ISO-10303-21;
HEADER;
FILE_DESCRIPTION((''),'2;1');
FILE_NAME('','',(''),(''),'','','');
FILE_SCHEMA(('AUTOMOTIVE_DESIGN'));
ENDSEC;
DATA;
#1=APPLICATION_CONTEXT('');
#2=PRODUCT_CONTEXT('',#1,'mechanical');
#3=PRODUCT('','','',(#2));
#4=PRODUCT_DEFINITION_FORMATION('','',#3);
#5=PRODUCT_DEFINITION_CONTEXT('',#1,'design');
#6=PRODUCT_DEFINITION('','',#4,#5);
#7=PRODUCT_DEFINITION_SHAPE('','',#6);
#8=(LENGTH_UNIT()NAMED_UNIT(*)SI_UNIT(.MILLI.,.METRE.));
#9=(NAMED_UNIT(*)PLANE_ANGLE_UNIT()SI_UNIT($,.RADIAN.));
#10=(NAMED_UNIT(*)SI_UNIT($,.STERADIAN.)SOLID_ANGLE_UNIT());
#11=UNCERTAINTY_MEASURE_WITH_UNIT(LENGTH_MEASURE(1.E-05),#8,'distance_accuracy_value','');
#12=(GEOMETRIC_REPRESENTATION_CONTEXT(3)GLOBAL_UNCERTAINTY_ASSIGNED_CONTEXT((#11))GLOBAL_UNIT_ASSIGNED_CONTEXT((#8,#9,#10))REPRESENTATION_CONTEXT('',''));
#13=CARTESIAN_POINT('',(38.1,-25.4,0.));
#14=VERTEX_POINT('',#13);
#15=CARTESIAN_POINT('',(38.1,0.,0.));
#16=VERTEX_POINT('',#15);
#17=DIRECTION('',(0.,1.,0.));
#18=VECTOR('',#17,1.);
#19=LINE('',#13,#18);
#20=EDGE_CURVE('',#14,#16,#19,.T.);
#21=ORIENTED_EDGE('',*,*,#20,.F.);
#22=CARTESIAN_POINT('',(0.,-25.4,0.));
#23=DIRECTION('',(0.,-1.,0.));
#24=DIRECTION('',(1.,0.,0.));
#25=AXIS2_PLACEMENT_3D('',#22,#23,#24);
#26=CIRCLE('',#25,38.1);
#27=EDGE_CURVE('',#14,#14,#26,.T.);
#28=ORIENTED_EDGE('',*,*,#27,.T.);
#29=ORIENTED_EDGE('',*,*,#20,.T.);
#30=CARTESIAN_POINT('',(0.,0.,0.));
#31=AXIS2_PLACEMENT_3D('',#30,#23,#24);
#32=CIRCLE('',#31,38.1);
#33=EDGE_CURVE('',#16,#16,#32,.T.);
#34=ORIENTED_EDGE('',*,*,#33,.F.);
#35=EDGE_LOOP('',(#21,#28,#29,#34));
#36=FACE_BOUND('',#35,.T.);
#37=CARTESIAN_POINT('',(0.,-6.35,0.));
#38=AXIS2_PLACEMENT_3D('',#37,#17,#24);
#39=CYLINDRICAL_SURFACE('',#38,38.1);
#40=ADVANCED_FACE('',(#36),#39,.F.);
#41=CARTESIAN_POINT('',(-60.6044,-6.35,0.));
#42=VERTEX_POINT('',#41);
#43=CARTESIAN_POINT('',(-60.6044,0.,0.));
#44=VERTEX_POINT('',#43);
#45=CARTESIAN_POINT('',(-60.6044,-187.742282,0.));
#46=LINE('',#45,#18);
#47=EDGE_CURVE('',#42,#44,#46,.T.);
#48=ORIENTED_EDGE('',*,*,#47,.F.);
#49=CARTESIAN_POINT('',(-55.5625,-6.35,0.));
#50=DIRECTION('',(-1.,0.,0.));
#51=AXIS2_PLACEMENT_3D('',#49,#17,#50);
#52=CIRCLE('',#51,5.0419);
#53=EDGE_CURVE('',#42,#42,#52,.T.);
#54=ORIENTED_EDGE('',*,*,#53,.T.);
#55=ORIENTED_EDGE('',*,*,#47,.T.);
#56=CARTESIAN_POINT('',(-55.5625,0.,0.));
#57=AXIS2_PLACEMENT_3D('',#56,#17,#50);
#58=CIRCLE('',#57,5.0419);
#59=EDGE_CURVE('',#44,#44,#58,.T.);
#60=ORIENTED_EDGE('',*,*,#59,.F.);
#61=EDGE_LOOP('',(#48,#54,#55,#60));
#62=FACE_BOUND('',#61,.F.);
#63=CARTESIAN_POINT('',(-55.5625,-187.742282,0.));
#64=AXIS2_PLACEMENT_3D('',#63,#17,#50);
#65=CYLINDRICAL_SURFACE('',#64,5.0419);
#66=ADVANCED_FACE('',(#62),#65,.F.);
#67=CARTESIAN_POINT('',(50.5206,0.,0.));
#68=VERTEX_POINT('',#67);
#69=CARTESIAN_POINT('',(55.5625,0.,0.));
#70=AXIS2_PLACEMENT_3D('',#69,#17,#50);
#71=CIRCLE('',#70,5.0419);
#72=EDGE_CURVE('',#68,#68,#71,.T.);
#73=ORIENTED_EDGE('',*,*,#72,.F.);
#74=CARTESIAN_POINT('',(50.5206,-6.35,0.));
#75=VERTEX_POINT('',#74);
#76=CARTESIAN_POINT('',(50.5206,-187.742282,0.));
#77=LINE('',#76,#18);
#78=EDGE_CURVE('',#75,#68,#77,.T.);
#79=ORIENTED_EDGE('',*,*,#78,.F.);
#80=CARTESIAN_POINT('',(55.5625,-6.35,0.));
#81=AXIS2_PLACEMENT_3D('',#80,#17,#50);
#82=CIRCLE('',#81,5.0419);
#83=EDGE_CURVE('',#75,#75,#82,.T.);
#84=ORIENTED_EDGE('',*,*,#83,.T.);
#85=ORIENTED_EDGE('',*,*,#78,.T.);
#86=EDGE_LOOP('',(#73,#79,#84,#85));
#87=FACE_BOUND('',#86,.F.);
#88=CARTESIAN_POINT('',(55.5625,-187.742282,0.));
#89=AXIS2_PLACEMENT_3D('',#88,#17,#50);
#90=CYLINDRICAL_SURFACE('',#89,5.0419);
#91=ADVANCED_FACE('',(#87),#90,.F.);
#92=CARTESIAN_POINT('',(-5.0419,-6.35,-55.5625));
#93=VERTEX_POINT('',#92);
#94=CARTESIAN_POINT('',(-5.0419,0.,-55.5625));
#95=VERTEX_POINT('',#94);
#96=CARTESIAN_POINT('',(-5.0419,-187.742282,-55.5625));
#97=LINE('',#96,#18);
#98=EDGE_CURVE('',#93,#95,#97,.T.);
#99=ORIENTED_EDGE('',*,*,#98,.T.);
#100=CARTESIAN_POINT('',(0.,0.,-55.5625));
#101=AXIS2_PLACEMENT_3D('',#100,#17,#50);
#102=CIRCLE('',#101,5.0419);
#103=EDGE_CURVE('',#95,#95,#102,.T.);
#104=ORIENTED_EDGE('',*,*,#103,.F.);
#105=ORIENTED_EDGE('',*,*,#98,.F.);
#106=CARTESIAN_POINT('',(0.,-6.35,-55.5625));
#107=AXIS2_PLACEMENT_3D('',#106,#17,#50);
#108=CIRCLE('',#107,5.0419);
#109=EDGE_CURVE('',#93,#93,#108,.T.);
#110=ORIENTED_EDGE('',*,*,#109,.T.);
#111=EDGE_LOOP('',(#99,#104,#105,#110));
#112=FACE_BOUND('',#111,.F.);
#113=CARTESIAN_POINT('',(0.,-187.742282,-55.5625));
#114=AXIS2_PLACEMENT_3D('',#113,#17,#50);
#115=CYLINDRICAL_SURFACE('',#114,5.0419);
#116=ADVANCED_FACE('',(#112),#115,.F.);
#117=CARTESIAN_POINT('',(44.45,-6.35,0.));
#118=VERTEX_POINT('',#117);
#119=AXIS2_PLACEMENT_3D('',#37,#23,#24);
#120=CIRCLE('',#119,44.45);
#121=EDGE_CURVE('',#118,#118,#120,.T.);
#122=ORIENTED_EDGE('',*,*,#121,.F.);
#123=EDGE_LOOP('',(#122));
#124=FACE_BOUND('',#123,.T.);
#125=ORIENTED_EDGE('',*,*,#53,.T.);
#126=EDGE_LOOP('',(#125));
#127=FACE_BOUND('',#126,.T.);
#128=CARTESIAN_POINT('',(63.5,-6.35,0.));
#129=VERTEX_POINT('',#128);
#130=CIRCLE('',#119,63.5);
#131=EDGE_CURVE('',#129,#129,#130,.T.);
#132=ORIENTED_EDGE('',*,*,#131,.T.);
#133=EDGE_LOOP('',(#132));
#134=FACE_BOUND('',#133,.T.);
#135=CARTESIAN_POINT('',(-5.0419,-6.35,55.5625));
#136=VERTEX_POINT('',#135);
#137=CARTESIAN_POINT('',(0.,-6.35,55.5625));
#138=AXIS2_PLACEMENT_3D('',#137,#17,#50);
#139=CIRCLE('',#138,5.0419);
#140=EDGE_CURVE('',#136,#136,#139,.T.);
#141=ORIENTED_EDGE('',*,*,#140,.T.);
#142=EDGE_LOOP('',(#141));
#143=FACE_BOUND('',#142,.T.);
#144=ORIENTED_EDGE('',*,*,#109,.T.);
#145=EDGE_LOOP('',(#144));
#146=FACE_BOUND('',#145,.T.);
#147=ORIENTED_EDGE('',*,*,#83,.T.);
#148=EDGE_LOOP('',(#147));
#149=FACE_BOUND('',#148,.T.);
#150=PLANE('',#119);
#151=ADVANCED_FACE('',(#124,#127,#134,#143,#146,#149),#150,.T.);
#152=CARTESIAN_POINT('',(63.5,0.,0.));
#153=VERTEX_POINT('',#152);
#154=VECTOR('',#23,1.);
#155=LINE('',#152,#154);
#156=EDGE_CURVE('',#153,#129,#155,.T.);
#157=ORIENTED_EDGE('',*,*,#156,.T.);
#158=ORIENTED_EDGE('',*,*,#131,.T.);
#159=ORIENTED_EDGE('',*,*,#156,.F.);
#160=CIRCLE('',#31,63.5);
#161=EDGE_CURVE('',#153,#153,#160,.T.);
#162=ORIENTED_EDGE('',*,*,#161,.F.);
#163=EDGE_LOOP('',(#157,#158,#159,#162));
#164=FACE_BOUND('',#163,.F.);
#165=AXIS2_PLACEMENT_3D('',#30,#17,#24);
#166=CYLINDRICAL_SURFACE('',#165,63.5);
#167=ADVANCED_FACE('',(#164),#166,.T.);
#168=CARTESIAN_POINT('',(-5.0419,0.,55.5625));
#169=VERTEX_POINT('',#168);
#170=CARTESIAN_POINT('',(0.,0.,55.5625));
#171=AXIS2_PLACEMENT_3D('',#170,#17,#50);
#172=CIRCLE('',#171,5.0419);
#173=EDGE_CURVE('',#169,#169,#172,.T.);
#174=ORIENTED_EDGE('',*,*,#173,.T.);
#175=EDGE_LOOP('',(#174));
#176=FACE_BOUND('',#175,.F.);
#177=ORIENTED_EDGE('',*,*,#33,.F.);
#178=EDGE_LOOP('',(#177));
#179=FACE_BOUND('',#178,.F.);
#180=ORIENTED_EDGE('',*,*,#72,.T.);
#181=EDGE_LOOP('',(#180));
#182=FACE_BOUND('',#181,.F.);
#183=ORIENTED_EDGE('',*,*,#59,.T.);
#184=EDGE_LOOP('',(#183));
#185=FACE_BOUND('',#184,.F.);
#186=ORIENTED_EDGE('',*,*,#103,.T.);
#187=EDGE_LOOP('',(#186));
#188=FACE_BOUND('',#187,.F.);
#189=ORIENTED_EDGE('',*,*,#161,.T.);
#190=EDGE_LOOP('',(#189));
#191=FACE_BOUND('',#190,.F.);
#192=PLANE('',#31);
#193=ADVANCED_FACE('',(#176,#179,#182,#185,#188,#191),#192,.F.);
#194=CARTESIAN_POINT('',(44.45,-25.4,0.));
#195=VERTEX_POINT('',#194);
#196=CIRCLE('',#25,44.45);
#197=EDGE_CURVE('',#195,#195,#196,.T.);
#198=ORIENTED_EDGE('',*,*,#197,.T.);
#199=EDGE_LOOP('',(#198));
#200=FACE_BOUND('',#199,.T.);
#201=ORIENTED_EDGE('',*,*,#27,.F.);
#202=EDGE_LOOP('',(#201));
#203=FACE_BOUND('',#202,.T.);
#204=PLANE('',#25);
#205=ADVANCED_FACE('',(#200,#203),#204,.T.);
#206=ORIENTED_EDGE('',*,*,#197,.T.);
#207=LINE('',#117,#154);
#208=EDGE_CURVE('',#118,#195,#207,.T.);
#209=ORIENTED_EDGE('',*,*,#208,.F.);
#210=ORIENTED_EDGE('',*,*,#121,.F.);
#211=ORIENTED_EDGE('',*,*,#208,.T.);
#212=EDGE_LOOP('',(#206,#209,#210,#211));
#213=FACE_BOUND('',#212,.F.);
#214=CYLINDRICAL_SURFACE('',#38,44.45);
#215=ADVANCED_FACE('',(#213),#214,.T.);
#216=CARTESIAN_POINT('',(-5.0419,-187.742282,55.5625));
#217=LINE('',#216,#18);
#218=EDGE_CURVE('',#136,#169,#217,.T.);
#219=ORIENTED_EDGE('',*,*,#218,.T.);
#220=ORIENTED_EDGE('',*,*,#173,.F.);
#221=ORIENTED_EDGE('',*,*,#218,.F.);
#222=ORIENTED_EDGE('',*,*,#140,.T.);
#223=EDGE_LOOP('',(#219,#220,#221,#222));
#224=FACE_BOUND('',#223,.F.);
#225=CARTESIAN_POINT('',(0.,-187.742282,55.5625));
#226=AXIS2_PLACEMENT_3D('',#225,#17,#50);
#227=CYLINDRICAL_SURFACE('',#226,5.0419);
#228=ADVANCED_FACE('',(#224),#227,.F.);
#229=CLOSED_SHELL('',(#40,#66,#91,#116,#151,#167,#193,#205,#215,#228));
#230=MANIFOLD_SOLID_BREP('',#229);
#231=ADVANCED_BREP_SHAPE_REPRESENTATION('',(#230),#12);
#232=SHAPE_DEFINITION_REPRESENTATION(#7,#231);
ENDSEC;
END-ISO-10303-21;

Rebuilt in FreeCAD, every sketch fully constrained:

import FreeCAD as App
import Part
import Sketcher

V = App.Vector
Q = App.Units.Quantity

doc = App.newDocument("Part")
body = doc.addObject("PartDesign::Body", "Body")

sketch1 = doc.addObject("Sketcher::SketchObject", "Sketch")
body.addObject(sketch1)
sketch1.AttachmentSupport = (doc.XZ_Plane, [""])
sketch1.MapMode = "FlatFace"
sketch1.addGeometry([
    Part.Circle(V(0, 0, 0), V(0, 0, 1), 64),
    Part.Circle(V(0, 0, 0), V(0, 0, 1), 38),
], False)
sketch1.addConstraint([
    Sketcher.Constraint("Coincident", 0, 3, -1, 1),
    Sketcher.Constraint("Coincident", 1, 3, -1, 1),
    Sketcher.Constraint("Diameter", 0, Q("5 in")),
    Sketcher.Constraint("Diameter", 1, Q("3 in")),
])
pad1 = doc.addObject("PartDesign::Pad", "Pad")
body.addObject(pad1)
pad1.Profile = sketch1
pad1.Length = Q("0.25 in")

sketch2 = doc.addObject("Sketcher::SketchObject", "Sketch001")
body.addObject(sketch2)
sketch2.AttachmentSupport = (doc.XZ_Plane, [""])
sketch2.MapMode = "FlatFace"
sketch2.AttachmentOffset = App.Placement(V(0, 0, 0.25 * 25.4), App.Rotation())
sketch2.addGeometry([
    Part.Circle(V(0, 0, 0), V(0, 0, 1), 44),
    Part.Circle(V(0, 0, 0), V(0, 0, 1), 38),
], False)
sketch2.addConstraint([
    Sketcher.Constraint("Coincident", 0, 3, -1, 1),
    Sketcher.Constraint("Coincident", 1, 3, -1, 1),
    Sketcher.Constraint("Diameter", 1, Q("3 in")),
    Sketcher.Constraint("Diameter", 0, Q("3.5 in")),
])
pad2 = doc.addObject("PartDesign::Pad", "Pad001")
body.addObject(pad2)
pad2.Profile = sketch2
pad2.Length = Q("0.75 in")

sketch3 = doc.addObject("Sketcher::SketchObject", "Sketch002")
body.addObject(sketch3)
sketch3.AttachmentSupport = (doc.XZ_Plane, [""])
sketch3.MapMode = "FlatFace"
sketch3.AttachmentOffset = App.Placement(V(0, 0, 0.25 * 25.4), App.Rotation())
sketch3.addGeometry([
    Part.Circle(V(0, 56, 0), V(0, 0, 1), 5),
    Part.Circle(V(56, 0, 0), V(0, 0, 1), 5),
    Part.Circle(V(-56, 0, 0), V(0, 0, 1), 5),
    Part.Circle(V(0, -56, 0), V(0, 0, 1), 5),
], False)
sketch3.addConstraint([
    Sketcher.Constraint("Equal", 0, 1),
    Sketcher.Constraint("Equal", 1, 2),
    Sketcher.Constraint("Equal", 2, 3),
    Sketcher.Constraint("Symmetric", 1, 3, 2, 3, -1, 1),
    Sketcher.Constraint("Symmetric", 0, 3, 3, 3, -1, 1),
    Sketcher.Constraint("PointOnObject", 0, 3, -2),
    Sketcher.Constraint("PointOnObject", 1, 3, -1),
    Sketcher.Constraint("Diameter", 0, Q("0.397 in")),
    Sketcher.Constraint("DistanceY", -1, 1, 0, 3, Q("2.1875 in")),
    Sketcher.Constraint("DistanceX", -1, 1, 1, 3, Q("2.1875 in")),
])
doc.recompute()
hole = doc.addObject("PartDesign::Hole", "Hole")
body.addObject(hole)
hole.Profile = sketch3
hole.ThreadType = "None"
hole.Diameter = Q("0.397 in")
hole.DepthType = "ThroughAll"

doc.recompute()
